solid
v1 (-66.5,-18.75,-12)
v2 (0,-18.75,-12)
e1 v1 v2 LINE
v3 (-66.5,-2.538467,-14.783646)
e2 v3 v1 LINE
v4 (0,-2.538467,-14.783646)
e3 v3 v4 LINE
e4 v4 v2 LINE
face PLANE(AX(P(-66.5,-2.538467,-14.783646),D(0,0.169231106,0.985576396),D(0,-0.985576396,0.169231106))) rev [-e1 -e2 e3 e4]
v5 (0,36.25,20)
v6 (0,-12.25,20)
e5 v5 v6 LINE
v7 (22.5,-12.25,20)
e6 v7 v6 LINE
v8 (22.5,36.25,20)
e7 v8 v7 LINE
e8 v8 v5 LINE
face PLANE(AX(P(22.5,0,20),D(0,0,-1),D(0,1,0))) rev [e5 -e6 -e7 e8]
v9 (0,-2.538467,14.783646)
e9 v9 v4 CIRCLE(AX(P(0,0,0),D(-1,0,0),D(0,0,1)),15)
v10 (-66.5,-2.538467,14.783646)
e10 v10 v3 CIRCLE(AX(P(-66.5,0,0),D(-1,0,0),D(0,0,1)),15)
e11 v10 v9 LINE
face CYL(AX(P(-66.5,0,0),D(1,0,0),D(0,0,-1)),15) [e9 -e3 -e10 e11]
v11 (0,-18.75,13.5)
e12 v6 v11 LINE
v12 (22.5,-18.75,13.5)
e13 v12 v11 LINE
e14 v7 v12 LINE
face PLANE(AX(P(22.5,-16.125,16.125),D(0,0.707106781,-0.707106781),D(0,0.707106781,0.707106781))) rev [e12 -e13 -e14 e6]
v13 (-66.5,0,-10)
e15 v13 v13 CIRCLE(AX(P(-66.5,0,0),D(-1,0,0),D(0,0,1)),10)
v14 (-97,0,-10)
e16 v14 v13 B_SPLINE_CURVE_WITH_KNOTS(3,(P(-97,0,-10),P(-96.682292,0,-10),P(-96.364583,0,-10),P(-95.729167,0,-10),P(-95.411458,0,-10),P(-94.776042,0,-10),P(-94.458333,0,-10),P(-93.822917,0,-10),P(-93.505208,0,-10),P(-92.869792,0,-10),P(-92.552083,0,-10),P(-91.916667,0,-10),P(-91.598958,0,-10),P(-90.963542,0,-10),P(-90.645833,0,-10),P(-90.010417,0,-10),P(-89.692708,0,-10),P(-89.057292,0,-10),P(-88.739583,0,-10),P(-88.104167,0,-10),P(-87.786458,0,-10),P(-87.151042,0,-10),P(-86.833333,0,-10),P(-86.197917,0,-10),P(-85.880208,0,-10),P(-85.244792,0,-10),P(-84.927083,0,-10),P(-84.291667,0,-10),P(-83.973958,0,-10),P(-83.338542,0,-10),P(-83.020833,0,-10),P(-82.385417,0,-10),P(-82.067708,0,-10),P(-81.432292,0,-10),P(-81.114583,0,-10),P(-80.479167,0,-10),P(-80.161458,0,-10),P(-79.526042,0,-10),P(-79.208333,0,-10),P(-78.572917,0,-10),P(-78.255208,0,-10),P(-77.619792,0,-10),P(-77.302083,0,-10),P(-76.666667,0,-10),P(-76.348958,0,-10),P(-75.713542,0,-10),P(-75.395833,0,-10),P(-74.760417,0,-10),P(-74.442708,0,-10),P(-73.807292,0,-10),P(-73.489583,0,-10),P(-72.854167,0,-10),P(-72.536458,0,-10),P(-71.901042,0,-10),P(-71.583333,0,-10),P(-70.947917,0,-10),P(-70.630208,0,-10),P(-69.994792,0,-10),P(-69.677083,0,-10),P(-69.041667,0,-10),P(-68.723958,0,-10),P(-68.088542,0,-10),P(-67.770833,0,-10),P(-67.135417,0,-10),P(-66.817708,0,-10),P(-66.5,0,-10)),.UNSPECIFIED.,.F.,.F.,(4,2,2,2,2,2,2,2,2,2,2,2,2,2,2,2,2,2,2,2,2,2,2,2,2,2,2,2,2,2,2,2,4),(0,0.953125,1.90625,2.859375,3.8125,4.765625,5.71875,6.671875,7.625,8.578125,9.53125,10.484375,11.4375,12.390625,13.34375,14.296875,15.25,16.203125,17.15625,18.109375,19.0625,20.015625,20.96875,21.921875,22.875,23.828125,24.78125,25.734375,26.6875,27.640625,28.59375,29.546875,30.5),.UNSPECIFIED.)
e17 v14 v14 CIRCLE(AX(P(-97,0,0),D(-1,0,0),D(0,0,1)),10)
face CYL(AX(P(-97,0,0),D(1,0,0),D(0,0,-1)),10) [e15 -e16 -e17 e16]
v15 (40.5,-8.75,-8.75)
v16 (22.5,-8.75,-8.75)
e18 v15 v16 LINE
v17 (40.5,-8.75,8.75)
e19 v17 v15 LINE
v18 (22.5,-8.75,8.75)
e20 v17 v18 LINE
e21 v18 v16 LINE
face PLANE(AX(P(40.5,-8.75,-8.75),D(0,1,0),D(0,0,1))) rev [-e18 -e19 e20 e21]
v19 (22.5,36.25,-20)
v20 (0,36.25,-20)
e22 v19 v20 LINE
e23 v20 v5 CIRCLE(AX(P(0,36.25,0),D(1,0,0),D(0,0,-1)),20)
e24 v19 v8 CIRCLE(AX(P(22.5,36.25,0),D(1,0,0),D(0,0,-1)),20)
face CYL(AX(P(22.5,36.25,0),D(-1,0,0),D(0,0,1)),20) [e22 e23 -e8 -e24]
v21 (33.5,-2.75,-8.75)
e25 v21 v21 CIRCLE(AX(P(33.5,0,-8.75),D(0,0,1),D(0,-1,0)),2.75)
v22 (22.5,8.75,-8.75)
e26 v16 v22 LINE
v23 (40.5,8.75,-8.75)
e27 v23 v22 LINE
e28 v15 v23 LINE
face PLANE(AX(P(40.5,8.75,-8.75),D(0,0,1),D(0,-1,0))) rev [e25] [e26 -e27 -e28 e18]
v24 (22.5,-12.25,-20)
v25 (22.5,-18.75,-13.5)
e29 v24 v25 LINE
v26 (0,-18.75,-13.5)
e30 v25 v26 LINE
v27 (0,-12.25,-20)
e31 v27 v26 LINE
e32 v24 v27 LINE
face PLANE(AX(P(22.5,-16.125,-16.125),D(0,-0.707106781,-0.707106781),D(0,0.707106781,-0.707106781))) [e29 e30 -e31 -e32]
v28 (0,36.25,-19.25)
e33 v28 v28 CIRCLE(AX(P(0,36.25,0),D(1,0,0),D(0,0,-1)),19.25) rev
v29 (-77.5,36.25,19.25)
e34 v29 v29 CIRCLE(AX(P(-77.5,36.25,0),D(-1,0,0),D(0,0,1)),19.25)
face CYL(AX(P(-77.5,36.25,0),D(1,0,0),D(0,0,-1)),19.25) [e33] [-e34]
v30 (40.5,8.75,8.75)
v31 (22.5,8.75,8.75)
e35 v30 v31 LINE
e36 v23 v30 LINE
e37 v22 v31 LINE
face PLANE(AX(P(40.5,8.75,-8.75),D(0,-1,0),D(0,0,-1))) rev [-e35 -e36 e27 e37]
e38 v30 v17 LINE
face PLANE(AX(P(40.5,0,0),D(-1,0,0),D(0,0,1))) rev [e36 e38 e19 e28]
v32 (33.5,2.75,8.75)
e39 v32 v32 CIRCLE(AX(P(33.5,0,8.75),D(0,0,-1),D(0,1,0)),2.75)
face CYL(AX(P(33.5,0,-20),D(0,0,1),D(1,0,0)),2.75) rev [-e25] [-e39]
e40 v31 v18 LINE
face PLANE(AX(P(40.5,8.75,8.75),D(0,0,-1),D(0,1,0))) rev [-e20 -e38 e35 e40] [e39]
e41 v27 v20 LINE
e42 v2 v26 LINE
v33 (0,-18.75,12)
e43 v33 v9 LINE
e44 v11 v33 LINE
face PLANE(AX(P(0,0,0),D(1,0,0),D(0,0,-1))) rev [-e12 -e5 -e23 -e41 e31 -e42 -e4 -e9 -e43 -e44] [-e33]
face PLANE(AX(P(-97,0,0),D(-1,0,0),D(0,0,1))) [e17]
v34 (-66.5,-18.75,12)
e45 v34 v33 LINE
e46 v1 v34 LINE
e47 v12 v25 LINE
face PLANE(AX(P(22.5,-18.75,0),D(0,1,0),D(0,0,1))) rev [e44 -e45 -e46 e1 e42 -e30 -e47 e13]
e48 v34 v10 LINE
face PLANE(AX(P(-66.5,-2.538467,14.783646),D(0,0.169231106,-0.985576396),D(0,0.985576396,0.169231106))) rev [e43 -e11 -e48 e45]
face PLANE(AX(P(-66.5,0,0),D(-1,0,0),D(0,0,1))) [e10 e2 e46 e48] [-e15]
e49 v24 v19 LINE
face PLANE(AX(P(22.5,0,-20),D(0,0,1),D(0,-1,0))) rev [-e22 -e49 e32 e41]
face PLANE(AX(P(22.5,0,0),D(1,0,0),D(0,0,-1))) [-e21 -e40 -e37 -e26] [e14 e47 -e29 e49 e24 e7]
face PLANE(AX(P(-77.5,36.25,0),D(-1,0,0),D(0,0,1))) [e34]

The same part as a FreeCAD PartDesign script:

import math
import FreeCAD as App
import Part
import Sketcher


def add_polygon(sketch, points):
    """Adds a closed chain of lines whose ends are joined by coincident constraints."""
    first, n = sketch.GeometryCount, len(points)
    for a, b in zip(points, points[1:] + points[:1]):
        sketch.addGeometry(Part.LineSegment(App.Vector(*a, 0), App.Vector(*b, 0)), False)
    for i in range(n):
        sketch.addConstraint(Sketcher.Constraint("Coincident", first + i, 2, first + (i + 1) % n, 1))

doc = App.newDocument("Part")
body = doc.addObject("PartDesign::Body", "Body")

sketch1 = doc.addObject("Sketcher::SketchObject", "Sketch")
body.addObject(sketch1)
sketch1.AttachmentSupport = (doc.YZ_Plane, [""])
sketch1.MapMode = "FlatFace"
sketch1.addGeometry([
    Part.ArcOfCircle(Part.Circle(App.Vector(36, 0, 0), App.Vector(0, 0, 1), 20), math.radians(-90), math.radians(90)),
    Part.LineSegment(App.Vector(36, 20, 0), App.Vector(-12, 20, 0)),
    Part.LineSegment(App.Vector(-12, 20, 0), App.Vector(-19, 14, 0)),
    Part.LineSegment(App.Vector(-19, 14, 0), App.Vector(-19, -14, 0)),
    Part.LineSegment(App.Vector(-19, -14, 0), App.Vector(-12, -20, 0)),
    Part.LineSegment(App.Vector(-12, -20, 0), App.Vector(36, -20, 0)),
], False)
sketch1.addConstraint([
    Sketcher.Constraint("Tangent", 0, 2, 1, 1),
    Sketcher.Constraint("Coincident", 1, 2, 2, 1),
    Sketcher.Constraint("Coincident", 2, 2, 3, 1),
    Sketcher.Constraint("Coincident", 3, 2, 4, 1),
    Sketcher.Constraint("Coincident", 4, 2, 5, 1),
    Sketcher.Constraint("Tangent", 5, 2, 0, 1),
    Sketcher.Constraint("Horizontal", 1),
    Sketcher.Constraint("Vertical", 3),
    Sketcher.Constraint("Horizontal", 5),
    Sketcher.Constraint("Symmetric", 1, 2, 4, 2, -1),
    Sketcher.Constraint("Perpendicular", 2, 4),
    Sketcher.Constraint("Equal", 2, 4),
    Sketcher.Constraint("Radius", 0, 20.0),
    Sketcher.Constraint("DistanceY", 3, 2, 3, 1, 27.0),
    Sketcher.Constraint("DistanceX", 1, 2, 1, 1, 48.5),
    Sketcher.Constraint("DistanceX", -1, 1, 0, 3, 36.25),
])
pad1 = doc.addObject("PartDesign::Pad", "Pad")
body.addObject(pad1)
pad1.Profile = sketch1
pad1.Length = 22.5

sketch2 = doc.addObject("Sketcher::SketchObject", "Sketch001")
body.addObject(sketch2)
sketch2.AttachmentSupport = (doc.YZ_Plane, [""])
sketch2.MapMode = "FlatFace"
sketch2.AttachmentOffset = App.Placement(App.Vector(0, 0, 22.5), App.Rotation())
add_polygon(sketch2, [(9, 9), (-9, 9), (-9, -9), (9, -9)])
sketch2.addConstraint([
    Sketcher.Constraint("Horizontal", 0),
    Sketcher.Constraint("Vertical", 1),
    Sketcher.Constraint("Horizontal", 2),
    Sketcher.Constraint("Vertical", 3),
    Sketcher.Constraint("Symmetric", 0, 2, 2, 2, -1, 1),
    Sketcher.Constraint("Equal", 2, 1),
    Sketcher.Constraint("DistanceX", 0, 2, 0, 1, 17.5),
])
pad2 = doc.addObject("PartDesign::Pad", "Pad001")
body.addObject(pad2)
pad2.Profile = sketch2
pad2.Length = 18

sketch3 = doc.addObject("Sketcher::SketchObject", "Sketch002")
body.addObject(sketch3)
sketch3.AttachmentSupport = (doc.XY_Plane, [""])
sketch3.MapMode = "FlatFace"
sketch3.AttachmentOffset = App.Placement(App.Vector(0, 0, 8.75), App.Rotation())
sketch3.addGeometry(Part.Circle(App.Vector(33.5, 0, 0), App.Vector(0, 0, 1), 2.8), False)
sketch3.addConstraint([
    Sketcher.Constraint("PointOnObject", 0, 3, -1),
    Sketcher.Constraint("Diameter", 0, 5.5),
    Sketcher.Constraint("DistanceX", -1, 1, 0, 3, 33.5),
])
pocket1 = doc.addObject("PartDesign::Pocket", "Pocket")
body.addObject(pocket1)
pocket1.Profile = sketch3
pocket1.Type = "ThroughAll"
pocket1.Midplane = True

sketch4 = doc.addObject("Sketcher::SketchObject", "Sketch003")
body.addObject(sketch4)
sketch4.AttachmentSupport = (doc.YZ_Plane, [""])
sketch4.MapMode = "FlatFace"
sketch4.addGeometry([
    Part.LineSegment(App.Vector(-19, -12, 0), App.Vector(-19, 12, 0)),
    Part.LineSegment(App.Vector(-19, 12, 0), App.Vector(-3, 15, 0)),
    Part.ArcOfCircle(Part.Circle(App.Vector(0, 0, 0), App.Vector(0, 0, 1), 15), math.radians(-100), math.radians(100)),
    Part.LineSegment(App.Vector(-3, -15, 0), App.Vector(-19, -12, 0)),
], False)
sketch4.addConstraint([
    Sketcher.Constraint("Coincident", 0, 2, 1, 1),
    Sketcher.Constraint("Tangent", 1, 2, 2, 2),
    Sketcher.Constraint("Tangent", 2, 1, 3, 1),
    Sketcher.Constraint("Coincident", 3, 2, 0, 1),
    Sketcher.Constraint("Vertical", 0),
    Sketcher.Constraint("Coincident", 2, 3, -1, 1),
    Sketcher.Constraint("Vertical", 1, 2, 2, 1),
    Sketcher.Constraint("Radius", 2, 15.0),
    Sketcher.Constraint("DistanceY", 0, 1, 0, 2, 24.0),
    Sketcher.Constraint("DistanceX", 0, 2, -1, 1, 18.75),
])
pad3 = doc.addObject("PartDesign::Pad", "Pad002")
body.addObject(pad3)
pad3.Profile = sketch4
pad3.Length = 66.5
pad3.Reversed = True

sketch5 = doc.addObject("Sketcher::SketchObject", "Sketch004")
body.addObject(sketch5)
sketch5.AttachmentSupport = (doc.YZ_Plane, [""])
sketch5.MapMode = "FlatFace"
sketch5.addGeometry(Part.Circle(App.Vector(36, 0, 0), App.Vector(0, 0, 1), 19), False)
sketch5.addConstraint([
    Sketcher.Constraint("PointOnObject", 0, 3, -1),
    Sketcher.Constraint("Diameter", 0, 38.5),
    Sketcher.Constraint("DistanceX", -1, 1, 0, 3, 36.25),
])
pad4 = doc.addObject("PartDesign::Pad", "Pad003")
body.addObject(pad4)
pad4.Profile = sketch5
pad4.Length = 77.5
pad4.Reversed = True

sketch6 = doc.addObject("Sketcher::SketchObject", "Sketch005")
body.addObject(sketch6)
sketch6.AttachmentSupport = (doc.YZ_Plane, [""])
sketch6.MapMode = "FlatFace"
sketch6.AttachmentOffset = App.Placement(App.Vector(0, 0, -66.5), App.Rotation())
sketch6.addGeometry(Part.Circle(App.Vector(0, 0, 0), App.Vector(0, 0, 1), 10), False)
sketch6.addConstraint([
    Sketcher.Constraint("Coincident", 0, 3, -1, 1),
    Sketcher.Constraint("Diameter", 0, 20.0),
])
pad5 = doc.addObject("PartDesign::Pad", "Pad004")
body.addObject(pad5)
pad5.Profile = sketch6
pad5.Length = 30.5
pad5.Reversed = True

doc.recompute()
